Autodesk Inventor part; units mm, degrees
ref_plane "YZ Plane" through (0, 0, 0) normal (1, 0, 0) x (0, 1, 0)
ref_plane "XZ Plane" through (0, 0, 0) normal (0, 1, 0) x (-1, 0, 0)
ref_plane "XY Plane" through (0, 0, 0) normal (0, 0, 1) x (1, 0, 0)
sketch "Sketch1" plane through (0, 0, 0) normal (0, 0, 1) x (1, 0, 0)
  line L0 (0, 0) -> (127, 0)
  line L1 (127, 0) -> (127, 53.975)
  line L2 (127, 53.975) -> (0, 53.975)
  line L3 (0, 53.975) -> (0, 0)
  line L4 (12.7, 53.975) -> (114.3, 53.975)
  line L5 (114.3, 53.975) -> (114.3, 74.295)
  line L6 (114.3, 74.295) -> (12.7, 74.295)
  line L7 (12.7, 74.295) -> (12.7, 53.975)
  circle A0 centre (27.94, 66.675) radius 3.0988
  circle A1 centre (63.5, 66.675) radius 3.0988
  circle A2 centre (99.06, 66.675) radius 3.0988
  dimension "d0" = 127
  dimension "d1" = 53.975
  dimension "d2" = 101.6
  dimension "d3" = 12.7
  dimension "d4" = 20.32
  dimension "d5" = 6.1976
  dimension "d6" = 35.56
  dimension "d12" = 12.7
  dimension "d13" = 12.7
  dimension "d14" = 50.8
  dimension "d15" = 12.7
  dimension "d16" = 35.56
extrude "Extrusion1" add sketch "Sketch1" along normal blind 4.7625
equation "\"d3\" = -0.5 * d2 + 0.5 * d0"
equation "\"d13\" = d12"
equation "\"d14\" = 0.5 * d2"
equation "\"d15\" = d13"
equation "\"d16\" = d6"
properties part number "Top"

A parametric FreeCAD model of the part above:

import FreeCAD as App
import Part
import Sketcher
from FreeCAD import Vector
Q = App.Units.Quantity


def add_polygon(sketch, points):
    """Adds a closed chain of lines whose ends are joined by coincident constraints."""
    first, n = sketch.GeometryCount, len(points)
    for a, b in zip(points, points[1:] + points[:1]):
        sketch.addGeometry(Part.LineSegment(App.Vector(*a, 0), App.Vector(*b, 0)), False)
    for i in range(n):
        sketch.addConstraint(Sketcher.Constraint("Coincident", first + i, 2, first + (i + 1) % n, 1))

doc = App.newDocument("Part")
body = doc.addObject("PartDesign::Body", "Body")

# Sketch on XY plane
sketch1 = body.newObject("Sketcher::SketchObject", "Sketch")
sketch1.AttachmentSupport = (doc.getObject("XY_Plane"), [""])
sketch1.MapMode = "FlatFace"
add_polygon(sketch1, [(0, 54), (0, 0), (127, 0), (127, 54), (114.3, 54), (114.3, 74.3), (12.7, 74.3), (12.7, 54)])  # lines 0-7
sketch1.addGeometry(Part.Circle(Vector(99.1, 66.7, 0), Vector(0, 0, 1), 3.1), False)  # 8
sketch1.addGeometry(Part.Circle(Vector(27.9, 66.7, 0), Vector(0, 0, 1), 3.1), False)  # 9
sketch1.addGeometry(Part.Circle(Vector(63.5, 66.7, 0), Vector(0, 0, 1), 3.1), False)  # 10
sketch1.addConstraint(Sketcher.Constraint("Vertical", 0))
sketch1.addConstraint(Sketcher.Constraint("Horizontal", 1))
sketch1.addConstraint(Sketcher.Constraint("Vertical", 2))
sketch1.addConstraint(Sketcher.Constraint("Horizontal", 3))
sketch1.addConstraint(Sketcher.Constraint("Vertical", 4))
sketch1.addConstraint(Sketcher.Constraint("Horizontal", 5))
sketch1.addConstraint(Sketcher.Constraint("Vertical", 6))
sketch1.addConstraint(Sketcher.Constraint("Horizontal", 7))
sketch1.addConstraint(Sketcher.Constraint("Coincident", 0, 2, -1, 1))
sketch1.addConstraint(Sketcher.Constraint("Equal", 8, 9))
sketch1.addConstraint(Sketcher.Constraint("Equal", 9, 10))
sketch1.addConstraint(Sketcher.Constraint("Horizontal", 8, 3, 9, 3))
sketch1.addConstraint(Sketcher.Constraint("Horizontal", 9, 3, 10, 3))
sketch1.addConstraint(Sketcher.Constraint("Horizontal", 3, 2, 6, 2))
sketch1.addConstraint(Sketcher.Constraint("Equal", 3, 7))
sketch1.addConstraint(Sketcher.Constraint("DistanceX", 1, 1, 1, 2, Q("5 in")))
sketch1.addConstraint(Sketcher.Constraint("DistanceX", 5, 2, 5, 1, Q("4 in")))
sketch1.addConstraint(Sketcher.Constraint("Diameter", 8, Q("0.244 in")))
sketch1.addConstraint(Sketcher.Constraint("DistanceY", 4, 1, 4, 2, Q("0.8 in")))
sketch1.addConstraint(Sketcher.Constraint("DistanceX", 10, 3, 3, 2, Q("2 in")))
sketch1.addConstraint(Sketcher.Constraint("DistanceX", 10, 3, 8, 3, Q("1.4 in")))
sketch1.addConstraint(Sketcher.Constraint("DistanceX", 9, 3, 10, 3, Q("1.4 in")))
sketch1.addConstraint(Sketcher.Constraint("DistanceY", 2, 2, 8, 3, Q("0.5 in")))
sketch1.addConstraint(Sketcher.Constraint("DistanceY", 0, 2, 0, 1, Q("2.125 in")))
pad1 = body.newObject("PartDesign::Pad", "Pad")
pad1.Profile = sketch1
pad1.Length = Q("0.1875 in")

doc.recompute()
